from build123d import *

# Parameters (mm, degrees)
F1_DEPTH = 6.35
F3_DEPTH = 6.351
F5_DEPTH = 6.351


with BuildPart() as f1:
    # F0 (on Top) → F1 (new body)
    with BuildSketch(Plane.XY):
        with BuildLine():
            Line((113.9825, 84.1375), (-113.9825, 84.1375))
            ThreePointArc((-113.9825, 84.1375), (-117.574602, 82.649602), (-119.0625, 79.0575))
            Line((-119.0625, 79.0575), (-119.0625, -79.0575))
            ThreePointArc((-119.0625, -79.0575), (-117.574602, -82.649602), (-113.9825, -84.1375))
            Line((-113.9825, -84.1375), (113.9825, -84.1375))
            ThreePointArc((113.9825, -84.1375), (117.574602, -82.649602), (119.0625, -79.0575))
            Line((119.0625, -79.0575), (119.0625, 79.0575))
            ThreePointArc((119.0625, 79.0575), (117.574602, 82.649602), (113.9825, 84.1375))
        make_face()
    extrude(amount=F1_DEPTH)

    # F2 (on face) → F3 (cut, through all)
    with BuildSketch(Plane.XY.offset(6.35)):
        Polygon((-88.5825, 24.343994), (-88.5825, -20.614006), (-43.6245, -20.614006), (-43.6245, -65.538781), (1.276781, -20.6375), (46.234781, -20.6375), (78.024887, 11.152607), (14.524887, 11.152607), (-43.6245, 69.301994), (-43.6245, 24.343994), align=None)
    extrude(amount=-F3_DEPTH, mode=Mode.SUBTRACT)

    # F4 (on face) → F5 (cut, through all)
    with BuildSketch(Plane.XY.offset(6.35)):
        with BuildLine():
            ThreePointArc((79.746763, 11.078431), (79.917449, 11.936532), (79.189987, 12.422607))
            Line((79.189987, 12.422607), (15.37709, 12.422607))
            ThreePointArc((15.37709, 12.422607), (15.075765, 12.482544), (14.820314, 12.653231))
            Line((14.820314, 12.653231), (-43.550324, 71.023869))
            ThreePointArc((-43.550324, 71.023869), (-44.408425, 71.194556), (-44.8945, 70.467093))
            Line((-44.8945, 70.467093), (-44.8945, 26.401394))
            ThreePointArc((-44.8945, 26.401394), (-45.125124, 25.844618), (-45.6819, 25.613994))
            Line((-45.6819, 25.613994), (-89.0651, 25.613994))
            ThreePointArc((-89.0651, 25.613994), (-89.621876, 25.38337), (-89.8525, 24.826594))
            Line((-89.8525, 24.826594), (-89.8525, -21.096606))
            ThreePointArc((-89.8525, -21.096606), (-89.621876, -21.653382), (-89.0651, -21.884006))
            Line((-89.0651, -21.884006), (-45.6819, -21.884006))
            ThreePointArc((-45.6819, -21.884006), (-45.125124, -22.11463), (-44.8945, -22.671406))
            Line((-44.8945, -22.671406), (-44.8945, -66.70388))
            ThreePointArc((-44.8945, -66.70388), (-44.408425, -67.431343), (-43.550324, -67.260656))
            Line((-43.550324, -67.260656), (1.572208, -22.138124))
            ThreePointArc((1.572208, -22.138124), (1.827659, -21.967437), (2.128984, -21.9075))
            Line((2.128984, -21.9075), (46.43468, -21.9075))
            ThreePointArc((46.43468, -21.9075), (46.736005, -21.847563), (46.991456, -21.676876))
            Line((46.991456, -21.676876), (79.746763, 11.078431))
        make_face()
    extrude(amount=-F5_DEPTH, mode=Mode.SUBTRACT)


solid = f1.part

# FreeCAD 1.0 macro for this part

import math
import FreeCAD as App
import Part
import Sketcher
Q = App.Units.Quantity

doc = App.newDocument("Part")
body = doc.addObject("PartDesign::Body", "Body")

sketch1 = doc.addObject("Sketcher::SketchObject", "Sketch")
body.addObject(sketch1)
sketch1.AttachmentSupport = (doc.XY_Plane, [""])
sketch1.MapMode = "FlatFace"
sketch1.addGeometry(Part.LineSegment(App.Vector(113.9825, 84.1375, 0), App.Vector(-113.9825, 84.1375, 0)), False)
sketch1.addGeometry(Part.ArcOfCircle(Part.Circle(App.Vector(-113.982498, 79.057498, 0), App.Vector(0, 0, 1), 5.080002), math.radians(90.000017), math.radians(179.999983)), False)
sketch1.addGeometry(Part.LineSegment(App.Vector(-119.0625, 79.0575, 0), App.Vector(-119.0625, -79.0575, 0)), False)
sketch1.addGeometry(Part.ArcOfCircle(Part.Circle(App.Vector(-113.982498, -79.057498, 0), App.Vector(0, 0, 1), 5.080002), math.radians(-179.999983), math.radians(-90.000017)), False)
sketch1.addGeometry(Part.LineSegment(App.Vector(-113.9825, -84.1375, 0), App.Vector(113.9825, -84.1375, 0)), False)
sketch1.addGeometry(Part.ArcOfCircle(Part.Circle(App.Vector(113.982498, -79.057498, 0), App.Vector(0, 0, 1), 5.080002), math.radians(-89.999983), math.radians(-0.000017)), False)
sketch1.addGeometry(Part.LineSegment(App.Vector(119.0625, -79.0575, 0), App.Vector(119.0625, 79.0575, 0)), False)
sketch1.addGeometry(Part.ArcOfCircle(Part.Circle(App.Vector(113.982498, 79.057498, 0), App.Vector(0, 0, 1), 5.080002), math.radians(0.000017), math.radians(89.999983)), False)
sketch1.addConstraint(Sketcher.Constraint("Tangent", 0, 2, 1, 1))
sketch1.addConstraint(Sketcher.Constraint("Tangent", 1, 2, 2, 1))
sketch1.addConstraint(Sketcher.Constraint("Tangent", 2, 2, 3, 1))
sketch1.addConstraint(Sketcher.Constraint("Tangent", 3, 2, 4, 1))
sketch1.addConstraint(Sketcher.Constraint("Tangent", 4, 2, 5, 1))
sketch1.addConstraint(Sketcher.Constraint("Tangent", 5, 2, 6, 1))
sketch1.addConstraint(Sketcher.Constraint("Tangent", 6, 2, 7, 1))
sketch1.addConstraint(Sketcher.Constraint("Tangent", 7, 2, 0, 1))
sketch1.addConstraint(Sketcher.Constraint("Horizontal", 0))
sketch1.addConstraint(Sketcher.Constraint("Vertical", 2))
sketch1.addConstraint(Sketcher.Constraint("Horizontal", 4))
sketch1.addConstraint(Sketcher.Constraint("Vertical", 6))
sketch1.addConstraint(Sketcher.Constraint("Equal", 1, 3))
sketch1.addConstraint(Sketcher.Constraint("Equal", 3, 5))
sketch1.addConstraint(Sketcher.Constraint("Equal", 5, 7))
sketch1.addConstraint(Sketcher.Constraint("Symmetric", 1, 3, 5, 3, -1, 1))
sketch1.addConstraint(Sketcher.Constraint("Radius", 1, Q("0.2000001 in")))
sketch1.addConstraint(Sketcher.Constraint("DistanceX", 0, 2, 0, 1, Q("8.975 in")))
sketch1.addConstraint(Sketcher.Constraint("DistanceY", 2, 2, 2, 1, Q("6.225 in")))
pad1 = doc.addObject("PartDesign::Pad", "Pad")
body.addObject(pad1)
pad1.Profile = sketch1
pad1.Length = Q("0.25 in")

sketch2 = doc.addObject("Sketcher::SketchObject", "Sketch001")
body.addObject(sketch2)
sketch2.AttachmentSupport = (doc.XY_Plane, [""])
sketch2.MapMode = "FlatFace"
sketch2.AttachmentOffset = App.Placement(App.Vector(0, 0, 0.25 * 25.4), App.Rotation())
sketch2.addGeometry(Part.LineSegment(App.Vector(-88.5825, 24.343994, 0), App.Vector(-88.5825, -20.614006, 0)), False)
sketch2.addGeometry(Part.LineSegment(App.Vector(-88.5825, -20.614006, 0), App.Vector(-43.6245, -20.614006, 0)), False)
sketch2.addGeometry(Part.LineSegment(App.Vector(-43.6245, -20.614006, 0), App.Vector(-43.6245, -65.538781, 0)), False)
sketch2.addGeometry(Part.LineSegment(App.Vector(-43.6245, -65.538781, 0), App.Vector(1.276781, -20.6375, 0)), False)
sketch2.addGeometry(Part.LineSegment(App.Vector(1.276781, -20.6375, 0), App.Vector(46.234781, -20.6375, 0)), False)
sketch2.addGeometry(Part.LineSegment(App.Vector(46.234781, -20.6375, 0), App.Vector(78.024887, 11.152607, 0)), False)
sketch2.addGeometry(Part.LineSegment(App.Vector(78.024887, 11.152607, 0), App.Vector(14.524887, 11.152607, 0)), False)
sketch2.addGeometry(Part.LineSegment(App.Vector(14.524887, 11.152607, 0), App.Vector(-43.6245, 69.301994, 0)), False)
sketch2.addGeometry(Part.LineSegment(App.Vector(-43.6245, 69.301994, 0), App.Vector(-43.6245, 24.343994, 0)), False)
sketch2.addGeometry(Part.LineSegment(App.Vector(-43.6245, 24.343994, 0), App.Vector(-88.5825, 24.343994, 0)), False)
sketch2.addConstraint(Sketcher.Constraint("Coincident", 0, 2, 1, 1))
sketch2.addConstraint(Sketcher.Constraint("Coincident", 1, 2, 2, 1))
sketch2.addConstraint(Sketcher.Constraint("Coincident", 2, 2, 3, 1))
sketch2.addConstraint(Sketcher.Constraint("Coincident", 3, 2, 4, 1))
sketch2.addConstraint(Sketcher.Constraint("Coincident", 4, 2, 5, 1))
sketch2.addConstraint(Sketcher.Constraint("Coincident", 5, 2, 6, 1))
sketch2.addConstraint(Sketcher.Constraint("Coincident", 6, 2, 7, 1))
sketch2.addConstraint(Sketcher.Constraint("Coincident", 7, 2, 8, 1))
sketch2.addConstraint(Sketcher.Constraint("Coincident", 8, 2, 9, 1))
sketch2.addConstraint(Sketcher.Constraint("Coincident", 9, 2, 0, 1))
sketch2.addConstraint(Sketcher.Constraint("Vertical", 0))
sketch2.addConstraint(Sketcher.Constraint("Horizontal", 1))
sketch2.addConstraint(Sketcher.Constraint("Vertical", 2))
sketch2.addConstraint(Sketcher.Constraint("Horizontal", 4))
sketch2.addConstraint(Sketcher.Constraint("Horizontal", 6))
sketch2.addConstraint(Sketcher.Constraint("Vertical", 8))
sketch2.addConstraint(Sketcher.Constraint("Horizontal", 9))
sketch2.addConstraint(Sketcher.Constraint("Parallel", 3, 5))
sketch2.addConstraint(Sketcher.Constraint("Perpendicular", 5, 7))
sketch2.addConstraint(Sketcher.Constraint("Vertical", 2, 2, 7, 2))
sketch2.addConstraint(Sketcher.Constraint("Equal", 1, 4))
sketch2.addConstraint(Sketcher.Constraint("Equal", 9, 0))
sketch2.addConstraint(Sketcher.Constraint("Equal", 0, 8))
sketch2.addConstraint(Sketcher.Constraint("DistanceX", 6, 2, 6, 1, Q("2.5 in")))
sketch2.addConstraint(Sketcher.Constraint("Angle", 3, Q("45 deg")))
sketch2.addConstraint(Sketcher.Constraint("Distance", 3, Q("2.5 in")))
sketch2.addConstraint(Sketcher.Constraint("DistanceX", 1, 1, 1, 2, Q("1.77 in")))
sketch2.addConstraint(Sketcher.Constraint("Distance", 5, Q("1.77 in")))
sketch2.addConstraint(Sketcher.Constraint("DistanceY", 3, 2, -1, 1, Q("0.8125 in")))
sketch2.addConstraint(Sketcher.Constraint("DistanceX", 0, 2, -1, 1, Q("3.4875 in")))
pocket1 = doc.addObject("PartDesign::Pocket", "Pocket")
body.addObject(pocket1)
pocket1.Profile = sketch2
pocket1.Type = "ThroughAll"

sketch3 = doc.addObject("Sketcher::SketchObject", "Sketch002")
body.addObject(sketch3)
sketch3.AttachmentSupport = (doc.XY_Plane, [""])
sketch3.MapMode = "FlatFace"
sketch3.AttachmentOffset = App.Placement(App.Vector(0, 0, 0.25 * 25.4), App.Rotation())
sketch3.addGeometry(Part.ArcOfCircle(Part.Circle(App.Vector(79.189986, 11.635206, 0), App.Vector(0, 0, 1), 0.787401), math.radians(-44.999916), math.radians(89.999921)), False)
sketch3.addGeometry(Part.LineSegment(App.Vector(79.189987, 12.422607, 0), App.Vector(15.37709, 12.422607, 0)), False)
sketch3.addGeometry(Part.ArcOfCircle(Part.Circle(App.Vector(15.377089, 13.210005, 0), App.Vector(0, 0, 1), 0.787398), math.radians(-135.00005), math.radians(-89.99992)), False)
sketch3.addGeometry(Part.LineSegment(App.Vector(14.820314, 12.653231, 0), App.Vector(-43.550324, 71.023869, 0)), False)
sketch3.addGeometry(Part.ArcOfCircle(Part.Circle(App.Vector(-44.1071, 70.467093, 0), App.Vector(0, 0, 1), 0.7874), math.radians(44.999983), math.radians(180.000022)), False)
sketch3.addGeometry(Part.LineSegment(App.Vector(-44.8945, 70.467093, 0), App.Vector(-44.8945, 26.401394, 0)), False)
sketch3.addGeometry(Part.ArcOfCircle(Part.Circle(App.Vector(-45.6819, 26.401394, 0), App.Vector(0, 0, 1), 0.7874), math.radians(-90.00003), math.radians(0.00003)), False)
sketch3.addGeometry(Part.LineSegment(App.Vector(-45.6819, 25.613994, 0), App.Vector(-89.0651, 25.613994, 0)), False)
sketch3.addGeometry(Part.ArcOfCircle(Part.Circle(App.Vector(-89.0651, 24.826594, 0), App.Vector(0, 0, 1), 0.7874), math.radians(89.99997), math.radians(180.00003)), False)
sketch3.addGeometry(Part.LineSegment(App.Vector(-89.8525, 24.826594, 0), App.Vector(-89.8525, -21.096606, 0)), False)
sketch3.addGeometry(Part.ArcOfCircle(Part.Circle(App.Vector(-89.0651, -21.096606, 0), App.Vector(0, 0, 1), 0.7874), math.radians(179.99997), math.radians(270.00003)), False)
sketch3.addGeometry(Part.LineSegment(App.Vector(-89.0651, -21.884006, 0), App.Vector(-45.6819, -21.884006, 0)), False)
sketch3.addGeometry(Part.ArcOfCircle(Part.Circle(App.Vector(-45.6819, -22.671406, 0), App.Vector(0, 0, 1), 0.7874), math.radians(-0.00003), math.radians(90.00003)), False)
sketch3.addGeometry(Part.LineSegment(App.Vector(-44.8945, -22.671406, 0), App.Vector(-44.8945, -66.70388, 0)), False)
sketch3.addGeometry(Part.ArcOfCircle(Part.Circle(App.Vector(-44.1071, -66.70388, 0), App.Vector(0, 0, 1), 0.7874), math.radians(179.999978), math.radians(315.000017)), False)
sketch3.addGeometry(Part.LineSegment(App.Vector(-43.550324, -67.260656, 0), App.Vector(1.572208, -22.138124, 0)), False)
sketch3.addGeometry(Part.ArcOfCircle(Part.Circle(App.Vector(2.128983, -22.694898, 0), App.Vector(0, 0, 1), 0.787398), math.radians(89.99992), math.radians(135.00005)), False)
sketch3.addGeometry(Part.LineSegment(App.Vector(2.128984, -21.9075, 0), App.Vector(46.43468, -21.9075, 0)), False)
sketch3.addGeometry(Part.ArcOfCircle(Part.Circle(App.Vector(46.434681, -21.120102, 0), App.Vector(0, 0, 1), 0.787398), math.radians(-90.00008), math.radians(-44.99995)), False)
sketch3.addGeometry(Part.LineSegment(App.Vector(46.991456, -21.676876, 0), App.Vector(79.746763, 11.078431, 0)), False)
sketch3.addConstraint(Sketcher.Constraint("Tangent", 0, 2, 1, 1))
sketch3.addConstraint(Sketcher.Constraint("Tangent", 1, 2, 2, 2))
sketch3.addConstraint(Sketcher.Constraint("Tangent", 2, 1, 3, 1))
sketch3.addConstraint(Sketcher.Constraint("Tangent", 3, 2, 4, 1))
sketch3.addConstraint(Sketcher.Constraint("Tangent", 4, 2, 5, 1))
sketch3.addConstraint(Sketcher.Constraint("Tangent", 5, 2, 6, 2))
sketch3.addConstraint(Sketcher.Constraint("Tangent", 6, 1, 7, 1))
sketch3.addConstraint(Sketcher.Constraint("Tangent", 7, 2, 8, 1))
sketch3.addConstraint(Sketcher.Constraint("Tangent", 8, 2, 9, 1))
sketch3.addConstraint(Sketcher.Constraint("Tangent", 9, 2, 10, 1))
sketch3.addConstraint(Sketcher.Constraint("Tangent", 10, 2, 11, 1))
sketch3.addConstraint(Sketcher.Constraint("Tangent", 11, 2, 12, 2))
sketch3.addConstraint(Sketcher.Constraint("Tangent", 12, 1, 13, 1))
sketch3.addConstraint(Sketcher.Constraint("Tangent", 13, 2, 14, 1))
sketch3.addConstraint(Sketcher.Constraint("Tangent", 14, 2, 15, 1))
sketch3.addConstraint(Sketcher.Constraint("Tangent", 15, 2, 16, 2))
sketch3.addConstraint(Sketcher.Constraint("Tangent", 16, 1, 17, 1))
sketch3.addConstraint(Sketcher.Constraint("Tangent", 17, 2, 18, 1))
sketch3.addConstraint(Sketcher.Constraint("Tangent", 18, 2, 19, 1))
sketch3.addConstraint(Sketcher.Constraint("Tangent", 19, 2, 0, 1))
sketch3.addConstraint(Sketcher.Constraint("Horizontal", 1))
sketch3.addConstraint(Sketcher.Constraint("Vertical", 5))
sketch3.addConstraint(Sketcher.Constraint("Horizontal", 7))
sketch3.addConstraint(Sketcher.Constraint("Vertical", 9))
sketch3.addConstraint(Sketcher.Constraint("Horizontal", 11))
sketch3.addConstraint(Sketcher.Constraint("Vertical", 13))
sketch3.addConstraint(Sketcher.Constraint("Horizontal", 17))
sketch3.addConstraint(Sketcher.Constraint("Equal", 0, 4))
sketch3.addConstraint(Sketcher.Constraint("Equal", 4, 6))
sketch3.addConstraint(Sketcher.Constraint("Equal", 6, 8))
sketch3.addConstraint(Sketcher.Constraint("Equal", 8, 10))
sketch3.addConstraint(Sketcher.Constraint("Equal", 10, 12))
sketch3.addConstraint(Sketcher.Constraint("Equal", 12, 14))
sketch3.addConstraint(Sketcher.Constraint("Equal", 12, 16))
sketch3.addConstraint(Sketcher.Constraint("Equal", 16, 18))
sketch3.addConstraint(Sketcher.Constraint("Perpendicular", 3, 15))
sketch3.addConstraint(Sketcher.Constraint("Parallel", 15, 19))
sketch3.addConstraint(Sketcher.Constraint("Vertical", 6, 3, 12, 3))
sketch3.addConstraint(Sketcher.Constraint("Vertical", 3, 2, 14, 2))
sketch3.addConstraint(Sketcher.Constraint("Radius", 0, Q("0.031 in")))
sketch3.addConstraint(Sketcher.Constraint("Radius", 2, Q("0.0309999 in")))
sketch3.addConstraint(Sketcher.Constraint("DistanceX", 7, 2, 7, 1, Q("1.708 in")))
sketch3.addConstraint(Sketcher.Constraint("DistanceY", 9, 2, 9, 1, Q("1.808 in")))
sketch3.addConstraint(Sketcher.Constraint("DistanceY", 5, 2, 5, 1, Q("44.065699 mm")))
sketch3.addConstraint(Sketcher.Constraint("DistanceX", 4, 3, -1, 1, Q("1.7365 in")))
sketch3.addConstraint(Sketcher.Constraint("DistanceY", 16, 3, -1, 1, Q("0.8934999 in")))
sketch3.addConstraint(Sketcher.Constraint("Distance", 19, Q("46.322999 mm")))
sketch3.addConstraint(Sketcher.Constraint("DistanceX", 16, 3, 18, 3, Q("44.305698 mm")))
sketch3.addConstraint(Sketcher.Constraint("DistanceX", 2, 3, 0, 2, Q("63.812898 mm")))
sketch3.addConstraint(Sketcher.Constraint("DistanceY", 13, 2, 13, 1, Q("44.032474 mm")))
pocket2 = doc.addObject("PartDesign::Pocket", "Pocket001")
body.addObject(pocket2)
pocket2.Profile = sketch3
pocket2.Type = "ThroughAll"

doc.recompute()
